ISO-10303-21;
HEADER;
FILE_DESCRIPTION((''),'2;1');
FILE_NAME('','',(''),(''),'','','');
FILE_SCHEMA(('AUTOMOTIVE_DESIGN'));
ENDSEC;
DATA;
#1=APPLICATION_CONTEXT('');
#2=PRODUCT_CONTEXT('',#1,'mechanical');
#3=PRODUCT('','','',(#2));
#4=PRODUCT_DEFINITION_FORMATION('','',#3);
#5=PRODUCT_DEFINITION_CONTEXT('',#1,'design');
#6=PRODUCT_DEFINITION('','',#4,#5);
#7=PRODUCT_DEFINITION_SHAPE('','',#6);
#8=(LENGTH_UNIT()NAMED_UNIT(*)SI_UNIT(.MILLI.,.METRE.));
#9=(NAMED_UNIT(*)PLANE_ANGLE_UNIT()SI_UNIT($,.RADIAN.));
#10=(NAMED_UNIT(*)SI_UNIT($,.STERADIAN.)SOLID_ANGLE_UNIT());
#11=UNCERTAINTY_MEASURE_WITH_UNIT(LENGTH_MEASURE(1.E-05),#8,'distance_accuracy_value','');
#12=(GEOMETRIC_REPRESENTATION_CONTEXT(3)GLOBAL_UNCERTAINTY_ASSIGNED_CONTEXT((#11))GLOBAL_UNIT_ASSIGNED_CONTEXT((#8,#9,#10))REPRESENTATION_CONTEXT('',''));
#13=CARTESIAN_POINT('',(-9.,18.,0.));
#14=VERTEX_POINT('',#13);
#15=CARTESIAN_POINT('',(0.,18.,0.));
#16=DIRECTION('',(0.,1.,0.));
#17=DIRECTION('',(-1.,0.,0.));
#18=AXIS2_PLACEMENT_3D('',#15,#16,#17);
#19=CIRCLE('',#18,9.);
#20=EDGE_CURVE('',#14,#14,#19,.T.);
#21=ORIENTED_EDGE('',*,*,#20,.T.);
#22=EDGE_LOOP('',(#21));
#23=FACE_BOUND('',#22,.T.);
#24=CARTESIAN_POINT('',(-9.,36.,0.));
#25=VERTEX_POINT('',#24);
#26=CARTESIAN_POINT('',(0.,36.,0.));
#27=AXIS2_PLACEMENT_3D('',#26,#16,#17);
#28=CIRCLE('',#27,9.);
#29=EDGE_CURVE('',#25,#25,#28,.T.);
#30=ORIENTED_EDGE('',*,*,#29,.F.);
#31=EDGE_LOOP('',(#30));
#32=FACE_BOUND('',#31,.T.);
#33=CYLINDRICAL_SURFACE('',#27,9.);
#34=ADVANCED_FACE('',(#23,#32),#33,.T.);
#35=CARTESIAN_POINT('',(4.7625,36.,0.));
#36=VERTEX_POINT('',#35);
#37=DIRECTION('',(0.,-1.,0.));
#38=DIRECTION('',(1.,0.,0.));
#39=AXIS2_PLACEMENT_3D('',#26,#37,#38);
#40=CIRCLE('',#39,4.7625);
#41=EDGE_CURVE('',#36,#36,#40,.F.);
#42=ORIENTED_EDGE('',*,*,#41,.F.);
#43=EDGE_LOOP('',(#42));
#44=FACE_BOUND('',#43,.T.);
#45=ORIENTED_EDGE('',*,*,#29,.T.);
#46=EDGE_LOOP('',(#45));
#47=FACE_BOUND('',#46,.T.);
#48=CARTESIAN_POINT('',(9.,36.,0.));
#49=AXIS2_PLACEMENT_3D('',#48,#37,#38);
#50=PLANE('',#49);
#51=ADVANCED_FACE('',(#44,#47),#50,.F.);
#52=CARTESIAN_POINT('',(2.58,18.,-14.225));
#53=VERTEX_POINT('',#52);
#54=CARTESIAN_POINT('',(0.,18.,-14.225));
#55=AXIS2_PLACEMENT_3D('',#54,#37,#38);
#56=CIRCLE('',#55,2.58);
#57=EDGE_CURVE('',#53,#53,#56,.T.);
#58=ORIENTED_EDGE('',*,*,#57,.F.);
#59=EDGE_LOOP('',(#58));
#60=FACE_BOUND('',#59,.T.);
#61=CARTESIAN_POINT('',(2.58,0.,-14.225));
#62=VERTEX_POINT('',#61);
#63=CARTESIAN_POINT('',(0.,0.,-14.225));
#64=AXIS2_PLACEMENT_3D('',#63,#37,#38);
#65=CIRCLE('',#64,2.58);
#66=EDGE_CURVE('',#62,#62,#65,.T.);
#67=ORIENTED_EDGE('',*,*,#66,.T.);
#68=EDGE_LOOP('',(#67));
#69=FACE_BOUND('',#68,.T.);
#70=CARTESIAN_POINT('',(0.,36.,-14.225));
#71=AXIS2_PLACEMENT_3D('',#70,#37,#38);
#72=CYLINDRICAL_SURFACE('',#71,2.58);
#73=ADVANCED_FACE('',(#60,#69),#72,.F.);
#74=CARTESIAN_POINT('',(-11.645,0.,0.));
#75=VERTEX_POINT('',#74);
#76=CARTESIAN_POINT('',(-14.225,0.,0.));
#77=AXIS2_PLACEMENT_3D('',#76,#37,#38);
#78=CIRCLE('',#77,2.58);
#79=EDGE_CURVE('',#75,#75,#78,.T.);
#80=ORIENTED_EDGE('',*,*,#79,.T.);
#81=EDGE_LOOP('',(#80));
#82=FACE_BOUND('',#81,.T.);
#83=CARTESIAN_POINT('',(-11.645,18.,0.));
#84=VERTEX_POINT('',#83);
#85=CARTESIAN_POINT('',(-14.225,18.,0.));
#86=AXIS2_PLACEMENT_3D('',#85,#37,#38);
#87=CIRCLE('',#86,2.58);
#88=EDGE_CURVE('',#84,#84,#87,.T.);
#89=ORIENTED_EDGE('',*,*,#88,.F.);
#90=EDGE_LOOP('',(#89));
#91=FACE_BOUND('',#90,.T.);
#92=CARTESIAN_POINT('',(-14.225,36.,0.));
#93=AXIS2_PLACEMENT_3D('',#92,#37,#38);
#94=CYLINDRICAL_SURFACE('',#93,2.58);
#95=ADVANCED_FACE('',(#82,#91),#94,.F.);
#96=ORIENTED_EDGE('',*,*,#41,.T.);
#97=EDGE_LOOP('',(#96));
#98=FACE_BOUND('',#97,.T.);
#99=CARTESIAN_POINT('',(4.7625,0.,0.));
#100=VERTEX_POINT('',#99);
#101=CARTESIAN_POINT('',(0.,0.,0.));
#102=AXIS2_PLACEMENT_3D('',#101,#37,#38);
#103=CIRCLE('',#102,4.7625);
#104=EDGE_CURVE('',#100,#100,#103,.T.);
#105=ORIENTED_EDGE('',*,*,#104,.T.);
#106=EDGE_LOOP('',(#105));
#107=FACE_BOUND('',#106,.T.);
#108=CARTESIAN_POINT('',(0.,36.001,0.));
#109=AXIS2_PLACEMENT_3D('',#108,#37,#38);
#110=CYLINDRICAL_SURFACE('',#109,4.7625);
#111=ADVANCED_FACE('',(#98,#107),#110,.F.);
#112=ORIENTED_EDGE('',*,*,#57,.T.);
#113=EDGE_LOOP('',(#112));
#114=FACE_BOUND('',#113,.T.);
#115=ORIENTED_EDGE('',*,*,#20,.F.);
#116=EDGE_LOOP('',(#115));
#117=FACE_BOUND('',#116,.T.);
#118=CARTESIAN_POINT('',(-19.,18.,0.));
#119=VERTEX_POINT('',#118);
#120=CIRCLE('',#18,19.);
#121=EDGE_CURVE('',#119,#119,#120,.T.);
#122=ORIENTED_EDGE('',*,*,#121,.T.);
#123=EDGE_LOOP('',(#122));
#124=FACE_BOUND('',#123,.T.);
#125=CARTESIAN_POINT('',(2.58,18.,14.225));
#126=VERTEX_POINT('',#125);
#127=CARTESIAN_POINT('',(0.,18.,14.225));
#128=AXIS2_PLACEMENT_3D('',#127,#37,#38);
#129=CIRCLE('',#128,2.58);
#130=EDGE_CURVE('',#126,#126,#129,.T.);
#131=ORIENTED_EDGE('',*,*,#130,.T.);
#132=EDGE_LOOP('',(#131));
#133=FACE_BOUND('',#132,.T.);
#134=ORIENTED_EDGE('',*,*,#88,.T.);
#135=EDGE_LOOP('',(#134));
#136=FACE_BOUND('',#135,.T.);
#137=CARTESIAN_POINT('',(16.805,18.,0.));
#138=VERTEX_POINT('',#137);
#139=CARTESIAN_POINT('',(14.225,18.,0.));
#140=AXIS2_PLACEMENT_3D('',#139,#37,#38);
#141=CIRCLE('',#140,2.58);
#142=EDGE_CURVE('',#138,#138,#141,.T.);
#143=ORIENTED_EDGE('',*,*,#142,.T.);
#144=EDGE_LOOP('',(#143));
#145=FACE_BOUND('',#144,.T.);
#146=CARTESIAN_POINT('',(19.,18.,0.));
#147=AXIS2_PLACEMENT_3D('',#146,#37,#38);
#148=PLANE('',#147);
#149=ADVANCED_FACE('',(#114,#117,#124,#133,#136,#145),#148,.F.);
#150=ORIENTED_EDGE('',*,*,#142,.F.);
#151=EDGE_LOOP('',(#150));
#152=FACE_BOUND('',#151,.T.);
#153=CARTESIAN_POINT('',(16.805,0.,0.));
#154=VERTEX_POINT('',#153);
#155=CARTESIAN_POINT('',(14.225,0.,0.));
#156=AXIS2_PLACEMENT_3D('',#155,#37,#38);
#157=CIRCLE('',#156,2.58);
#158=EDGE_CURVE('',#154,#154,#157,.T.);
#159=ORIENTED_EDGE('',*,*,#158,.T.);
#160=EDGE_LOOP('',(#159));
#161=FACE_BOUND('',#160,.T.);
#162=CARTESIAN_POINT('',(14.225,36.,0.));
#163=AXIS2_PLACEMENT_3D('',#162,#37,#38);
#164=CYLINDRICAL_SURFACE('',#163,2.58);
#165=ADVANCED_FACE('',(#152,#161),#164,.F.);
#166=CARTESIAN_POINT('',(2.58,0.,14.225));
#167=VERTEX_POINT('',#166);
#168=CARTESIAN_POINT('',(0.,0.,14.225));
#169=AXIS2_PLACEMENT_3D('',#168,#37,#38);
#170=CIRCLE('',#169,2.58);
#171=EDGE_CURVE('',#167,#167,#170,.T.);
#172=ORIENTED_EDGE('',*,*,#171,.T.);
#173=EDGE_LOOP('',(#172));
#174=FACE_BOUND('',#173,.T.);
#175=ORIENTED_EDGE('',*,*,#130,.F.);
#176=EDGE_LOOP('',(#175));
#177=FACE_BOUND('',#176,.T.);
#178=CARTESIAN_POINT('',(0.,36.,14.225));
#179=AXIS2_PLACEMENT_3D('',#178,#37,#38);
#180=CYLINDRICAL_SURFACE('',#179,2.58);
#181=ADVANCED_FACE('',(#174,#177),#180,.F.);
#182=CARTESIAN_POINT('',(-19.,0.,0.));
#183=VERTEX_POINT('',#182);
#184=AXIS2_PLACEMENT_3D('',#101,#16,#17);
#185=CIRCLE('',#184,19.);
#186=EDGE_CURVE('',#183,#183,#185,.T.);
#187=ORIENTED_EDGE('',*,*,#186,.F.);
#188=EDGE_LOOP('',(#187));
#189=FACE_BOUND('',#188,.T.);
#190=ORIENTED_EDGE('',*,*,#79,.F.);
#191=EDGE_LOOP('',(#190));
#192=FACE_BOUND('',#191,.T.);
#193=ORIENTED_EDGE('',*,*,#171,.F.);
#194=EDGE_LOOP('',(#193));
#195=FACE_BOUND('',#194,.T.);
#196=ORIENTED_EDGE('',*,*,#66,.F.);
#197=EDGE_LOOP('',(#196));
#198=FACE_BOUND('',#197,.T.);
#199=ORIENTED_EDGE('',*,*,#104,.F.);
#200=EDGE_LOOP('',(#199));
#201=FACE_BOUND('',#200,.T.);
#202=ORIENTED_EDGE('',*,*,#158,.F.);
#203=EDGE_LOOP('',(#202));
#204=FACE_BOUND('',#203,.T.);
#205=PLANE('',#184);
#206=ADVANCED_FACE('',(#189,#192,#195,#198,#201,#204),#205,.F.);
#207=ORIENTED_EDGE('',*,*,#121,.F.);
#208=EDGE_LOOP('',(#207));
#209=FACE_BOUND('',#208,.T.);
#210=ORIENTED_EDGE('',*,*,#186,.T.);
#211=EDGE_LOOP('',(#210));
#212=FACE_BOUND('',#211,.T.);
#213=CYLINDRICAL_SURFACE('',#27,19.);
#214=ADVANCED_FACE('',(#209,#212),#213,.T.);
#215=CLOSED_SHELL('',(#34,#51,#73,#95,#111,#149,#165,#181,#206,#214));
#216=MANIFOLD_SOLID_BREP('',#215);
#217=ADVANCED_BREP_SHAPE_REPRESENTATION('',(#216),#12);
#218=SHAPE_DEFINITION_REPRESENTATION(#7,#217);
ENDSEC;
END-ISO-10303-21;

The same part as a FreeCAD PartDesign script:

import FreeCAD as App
import Part
import Sketcher
from FreeCAD import Vector
Q = App.Units.Quantity


def add_polygon(sketch, points):
    """Adds a closed chain of lines whose ends are joined by coincident constraints."""
    first, n = sketch.GeometryCount, len(points)
    for a, b in zip(points, points[1:] + points[:1]):
        sketch.addGeometry(Part.LineSegment(App.Vector(*a, 0), App.Vector(*b, 0)), False)
    for i in range(n):
        sketch.addConstraint(Sketcher.Constraint("Coincident", first + i, 2, first + (i + 1) % n, 1))

doc = App.newDocument("Part")
params = doc.addObject("Spreadsheet::Sheet", "Params")
for row, (alias, value) in enumerate([
    ("sketch1_width", "19 mm"),
    ("sketch1_width2", "10 mm"),
    ("sketch1_height", "18 mm"),
    ("revolution_angle", "360 deg"),
    ("sketch3_diameter", "5.16 mm"),
], start=1):
    params.set(f"A{row}", alias)
    params.set(f"B{row}", "=" + value)
    params.setAlias(f"B{row}", alias)

body = doc.addObject("PartDesign::Body", "Body")

sketch1 = body.newObject("Sketcher::SketchObject", "Sketch")
sketch1.AttachmentSupport = (doc.getObject("XY_Plane"), [""])
sketch1.MapMode = "FlatFace"
add_polygon(sketch1, [(0, 0), (19, 0), (19, 18), (9, 18), (9, 36), (0, 36)])
sketch1.addConstraint([
    Sketcher.Constraint("Horizontal", 0),
    Sketcher.Constraint("Vertical", 1),
    Sketcher.Constraint("Horizontal", 2),
    Sketcher.Constraint("Vertical", 3),
    Sketcher.Constraint("Horizontal", 4),
    Sketcher.Constraint("Vertical", 5),
    Sketcher.Constraint("Coincident", 5, 2, -1, 1),
    Sketcher.Constraint("Equal", 1, 3),
    Sketcher.Constraint("DistanceX", 0, 1, 0, 2, Q("19 mm")),
    Sketcher.Constraint("DistanceX", 2, 2, 2, 1, Q("10 mm")),
    Sketcher.Constraint("DistanceY", 1, 1, 1, 2, Q("18 mm")),
])
sketch1.setExpression("Constraints[14]", "Params.sketch1_width")
sketch1.setExpression("Constraints[15]", "Params.sketch1_width2")
sketch1.setExpression("Constraints[16]", "Params.sketch1_height")
revolution = body.newObject("PartDesign::Revolution", "Revolution")
revolution.Profile = sketch1
revolution.ReferenceAxis = (sketch1, ["V_Axis"])
revolution.setExpression("Angle", "Params.revolution_angle")

sketch2 = body.newObject("Sketcher::SketchObject", "Sketch001")
sketch2.AttachmentSupport = (doc.getObject("XZ_Plane"), [""])
sketch2.MapMode = "FlatFace"
sketch2.addGeometry(Part.Circle(Vector(0, 0, 0), Vector(0, 0, 1), 4.7625), False)
sketch2.addConstraint([
    Sketcher.Constraint("Coincident", 0, 3, -1, 1),
    Sketcher.Constraint("Diameter", 0, Q("9.525 mm")),
])
pocket1 = body.newObject("PartDesign::Pocket", "Pocket")
pocket1.Profile = sketch2
pocket1.Type = "UpToFirst"

sketch3 = body.newObject("Sketcher::SketchObject", "Sketch002")
sketch3.AttachmentSupport = (doc.getObject("XZ_Plane"), [""])
sketch3.MapMode = "FlatFace"
sketch3.addGeometry([
    Part.Circle(Vector(0, 14.225, 0), Vector(0, 0, 1), 2.58),
    Part.Circle(Vector(14.225, 0, 0), Vector(0, 0, 1), 2.58),
    Part.Circle(Vector(0, -14.225, 0), Vector(0, 0, 1), 2.58),
    Part.Circle(Vector(-14.225, 0, 0), Vector(0, 0, 1), 2.58),
], False)
sketch3.addConstraint([
    Sketcher.Constraint("Equal", 0, 1),
    Sketcher.Constraint("Equal", 1, 2),
    Sketcher.Constraint("Equal", 2, 3),
    Sketcher.Constraint("Symmetric", 0, 3, 2, 3, -1, 1),
    Sketcher.Constraint("Symmetric", 1, 3, 3, 3, -1, 1),
    Sketcher.Constraint("PointOnObject", 0, 3, -2),
    Sketcher.Constraint("PointOnObject", 1, 3, -1),
    Sketcher.Constraint("Diameter", 0, Q("5.16 mm")),
    Sketcher.Constraint("DistanceY", 2, 3, 0, 3, Q("28.45 mm")),
    Sketcher.Constraint("DistanceX", 3, 3, 1, 3, Q("28.45 mm")),
])
sketch3.setExpression("Constraints[7]", "Params.sketch3_diameter")
pocket2 = body.newObject("PartDesign::Pocket", "Pocket001")
pocket2.Profile = sketch3
pocket2.Type = "ThroughAll"

doc.recompute()
